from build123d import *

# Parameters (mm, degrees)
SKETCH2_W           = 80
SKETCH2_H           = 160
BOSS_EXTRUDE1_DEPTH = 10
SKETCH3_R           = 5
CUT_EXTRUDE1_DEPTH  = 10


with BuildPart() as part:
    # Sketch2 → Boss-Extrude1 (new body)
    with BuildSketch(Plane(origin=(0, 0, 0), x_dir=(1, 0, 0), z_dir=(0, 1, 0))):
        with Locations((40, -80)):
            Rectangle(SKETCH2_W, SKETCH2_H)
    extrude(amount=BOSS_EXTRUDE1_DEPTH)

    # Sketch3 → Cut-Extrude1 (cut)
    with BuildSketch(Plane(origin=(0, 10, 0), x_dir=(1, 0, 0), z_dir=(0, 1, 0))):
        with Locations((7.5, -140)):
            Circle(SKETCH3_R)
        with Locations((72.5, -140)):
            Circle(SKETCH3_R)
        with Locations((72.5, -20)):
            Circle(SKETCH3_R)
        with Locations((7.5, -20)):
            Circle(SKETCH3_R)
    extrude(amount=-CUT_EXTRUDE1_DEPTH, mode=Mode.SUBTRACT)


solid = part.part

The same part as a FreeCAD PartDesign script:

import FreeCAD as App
import Part
import Sketcher

V = App.Vector
Q = App.Units.Quantity

doc = App.newDocument("Part")
body = doc.addObject("PartDesign::Body", "Body")

sketch1 = doc.addObject("Sketcher::SketchObject", "Sketch")
body.addObject(sketch1)
sketch1.AttachmentSupport = (doc.XZ_Plane, [""])
sketch1.MapMode = "FlatFace"
sketch1.addGeometry([
    Part.LineSegment(V(0, 0, 0), V(0, 160, 0)),
    Part.LineSegment(V(0, 160, 0), V(80, 160, 0)),
    Part.LineSegment(V(80, 160, 0), V(80, 0, 0)),
    Part.LineSegment(V(80, 0, 0), V(0, 0, 0)),
], False)
sketch1.addConstraint([
    Sketcher.Constraint("Coincident", 0, 2, 1, 1),
    Sketcher.Constraint("Coincident", 1, 2, 2, 1),
    Sketcher.Constraint("Coincident", 2, 2, 3, 1),
    Sketcher.Constraint("Coincident", 3, 2, 0, 1),
    Sketcher.Constraint("Vertical", 0),
    Sketcher.Constraint("Horizontal", 1),
    Sketcher.Constraint("Vertical", 2),
    Sketcher.Constraint("Horizontal", 3),
    Sketcher.Constraint("Coincident", 3, 2, -1, 1),
    Sketcher.Constraint("DistanceX", 1, 1, 1, 2, Q("80 mm")),
    Sketcher.Constraint("DistanceY", 0, 1, 0, 2, Q("160 mm")),
])
pad1 = doc.addObject("PartDesign::Pad", "Pad")
body.addObject(pad1)
pad1.Profile = sketch1
pad1.Length = 10
pad1.Reversed = True

sketch2 = doc.addObject("Sketcher::SketchObject", "Sketch001")
body.addObject(sketch2)
sketch2.AttachmentSupport = (doc.XZ_Plane, [""])
sketch2.MapMode = "FlatFace"
sketch2.AttachmentOffset = App.Placement(V(0, 0, -10), App.Rotation())
sketch2.addGeometry([
    Part.Circle(V(8, 140, 0), V(0, 0, 1), 5),
    Part.Circle(V(72, 140, 0), V(0, 0, 1), 5),
    Part.Circle(V(72, 20, 0), V(0, 0, 1), 5),
    Part.Circle(V(8, 20, 0), V(0, 0, 1), 5),
], False)
sketch2.addConstraint([
    Sketcher.Constraint("Equal", 0, 1),
    Sketcher.Constraint("Equal", 1, 2),
    Sketcher.Constraint("Equal", 2, 3),
    Sketcher.Constraint("Horizontal", 0, 3, 1, 3),
    Sketcher.Constraint("Horizontal", 2, 3, 3, 3),
    Sketcher.Constraint("Vertical", 1, 3, 2, 3),
    Sketcher.Constraint("Vertical", 0, 3, 3, 3),
    Sketcher.Constraint("Diameter", 0, Q("10 mm")),
    Sketcher.Constraint("DistanceY", -1, 1, 0, 3, Q("140 mm")),
    Sketcher.Constraint("DistanceY", -1, 1, 2, 3, Q("20 mm")),
    Sketcher.Constraint("DistanceX", 0, 3, 1, 3, Q("65 mm")),
    Sketcher.Constraint("DistanceX", -1, 1, 0, 3, Q("7.5 mm")),
])
pocket1 = doc.addObject("PartDesign::Pocket", "Pocket")
body.addObject(pocket1)
pocket1.Profile = sketch2
pocket1.Length = 10
pocket1.Reversed = True

doc.recompute()
